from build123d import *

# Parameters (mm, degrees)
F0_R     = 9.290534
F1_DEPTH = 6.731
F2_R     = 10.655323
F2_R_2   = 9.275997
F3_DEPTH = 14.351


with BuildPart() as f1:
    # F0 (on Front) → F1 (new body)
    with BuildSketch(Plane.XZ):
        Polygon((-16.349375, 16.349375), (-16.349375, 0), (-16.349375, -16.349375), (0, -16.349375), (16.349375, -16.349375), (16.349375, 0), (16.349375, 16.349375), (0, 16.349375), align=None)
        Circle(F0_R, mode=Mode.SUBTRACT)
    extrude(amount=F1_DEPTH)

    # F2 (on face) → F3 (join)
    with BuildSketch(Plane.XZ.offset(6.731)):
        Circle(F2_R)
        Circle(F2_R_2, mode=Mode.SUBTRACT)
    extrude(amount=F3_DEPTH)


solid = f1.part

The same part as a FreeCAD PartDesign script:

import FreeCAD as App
import Part
import Sketcher

V = App.Vector
Q = App.Units.Quantity


def add_polygon(sketch, points):
    """Adds a closed chain of lines whose ends are joined by coincident constraints."""
    first, n = sketch.GeometryCount, len(points)
    for a, b in zip(points, points[1:] + points[:1]):
        sketch.addGeometry(Part.LineSegment(App.Vector(*a, 0), App.Vector(*b, 0)), False)
    for i in range(n):
        sketch.addConstraint(Sketcher.Constraint("Coincident", first + i, 2, first + (i + 1) % n, 1))

doc = App.newDocument("Part")
body = doc.addObject("PartDesign::Body", "Body")

# Sketch on XZ plane
sketch1 = doc.addObject("Sketcher::SketchObject", "Sketch")
body.addObject(sketch1)
sketch1.AttachmentSupport = (doc.XZ_Plane, [""])
sketch1.MapMode = "FlatFace"
add_polygon(sketch1, [(-16, 16), (-16, -16), (16, -16), (16, 16)])  # lines 0-3
sketch1.addGeometry(Part.Circle(V(0, 0, 0), V(0, 0, 1), 9), False)  # 4
sketch1.addConstraint(Sketcher.Constraint("Vertical", 0))
sketch1.addConstraint(Sketcher.Constraint("Horizontal", 1))
sketch1.addConstraint(Sketcher.Constraint("Vertical", 2))
sketch1.addConstraint(Sketcher.Constraint("Horizontal", 3))
sketch1.addConstraint(Sketcher.Constraint("Coincident", 4, 3, -1, 1))
sketch1.addConstraint(Sketcher.Constraint("Symmetric", 0, 2, 2, 2, -1, 1))
sketch1.addConstraint(Sketcher.Constraint("Equal", 3, 0))
sketch1.addConstraint(Sketcher.Constraint("Diameter", 4, 18.581068))
sketch1.addConstraint(Sketcher.Constraint("DistanceX", 1, 1, 1, 2, 32.69875))
pad1 = doc.addObject("PartDesign::Pad", "Pad")
body.addObject(pad1)
pad1.Profile = sketch1
pad1.Length = Q("0.265 in")

# Sketch on XZ plane
sketch2 = doc.addObject("Sketcher::SketchObject", "Sketch001")
body.addObject(sketch2)
sketch2.AttachmentSupport = (doc.XZ_Plane, [""])
sketch2.MapMode = "FlatFace"
sketch2.AttachmentOffset = App.Placement(V(0, 0, 0.265 * 25.4), App.Rotation())
sketch2.addGeometry(Part.Circle(V(0, 0, 0), V(0, 0, 1), 11), False)
sketch2.addGeometry(Part.Circle(V(0, 0, 0), V(0, 0, 1), 9), False)
sketch2.addConstraint(Sketcher.Constraint("Coincident", 0, 3, -1, 1))
sketch2.addConstraint(Sketcher.Constraint("Coincident", 1, 3, -1, 1))
sketch2.addConstraint(Sketcher.Constraint("Diameter", 0, 21.310646))
sketch2.addConstraint(Sketcher.Constraint("Diameter", 1, 18.551994))
pad2 = doc.addObject("PartDesign::Pad", "Pad001")
body.addObject(pad2)
pad2.Profile = sketch2
pad2.Length = Q("0.565 in")

doc.recompute()
